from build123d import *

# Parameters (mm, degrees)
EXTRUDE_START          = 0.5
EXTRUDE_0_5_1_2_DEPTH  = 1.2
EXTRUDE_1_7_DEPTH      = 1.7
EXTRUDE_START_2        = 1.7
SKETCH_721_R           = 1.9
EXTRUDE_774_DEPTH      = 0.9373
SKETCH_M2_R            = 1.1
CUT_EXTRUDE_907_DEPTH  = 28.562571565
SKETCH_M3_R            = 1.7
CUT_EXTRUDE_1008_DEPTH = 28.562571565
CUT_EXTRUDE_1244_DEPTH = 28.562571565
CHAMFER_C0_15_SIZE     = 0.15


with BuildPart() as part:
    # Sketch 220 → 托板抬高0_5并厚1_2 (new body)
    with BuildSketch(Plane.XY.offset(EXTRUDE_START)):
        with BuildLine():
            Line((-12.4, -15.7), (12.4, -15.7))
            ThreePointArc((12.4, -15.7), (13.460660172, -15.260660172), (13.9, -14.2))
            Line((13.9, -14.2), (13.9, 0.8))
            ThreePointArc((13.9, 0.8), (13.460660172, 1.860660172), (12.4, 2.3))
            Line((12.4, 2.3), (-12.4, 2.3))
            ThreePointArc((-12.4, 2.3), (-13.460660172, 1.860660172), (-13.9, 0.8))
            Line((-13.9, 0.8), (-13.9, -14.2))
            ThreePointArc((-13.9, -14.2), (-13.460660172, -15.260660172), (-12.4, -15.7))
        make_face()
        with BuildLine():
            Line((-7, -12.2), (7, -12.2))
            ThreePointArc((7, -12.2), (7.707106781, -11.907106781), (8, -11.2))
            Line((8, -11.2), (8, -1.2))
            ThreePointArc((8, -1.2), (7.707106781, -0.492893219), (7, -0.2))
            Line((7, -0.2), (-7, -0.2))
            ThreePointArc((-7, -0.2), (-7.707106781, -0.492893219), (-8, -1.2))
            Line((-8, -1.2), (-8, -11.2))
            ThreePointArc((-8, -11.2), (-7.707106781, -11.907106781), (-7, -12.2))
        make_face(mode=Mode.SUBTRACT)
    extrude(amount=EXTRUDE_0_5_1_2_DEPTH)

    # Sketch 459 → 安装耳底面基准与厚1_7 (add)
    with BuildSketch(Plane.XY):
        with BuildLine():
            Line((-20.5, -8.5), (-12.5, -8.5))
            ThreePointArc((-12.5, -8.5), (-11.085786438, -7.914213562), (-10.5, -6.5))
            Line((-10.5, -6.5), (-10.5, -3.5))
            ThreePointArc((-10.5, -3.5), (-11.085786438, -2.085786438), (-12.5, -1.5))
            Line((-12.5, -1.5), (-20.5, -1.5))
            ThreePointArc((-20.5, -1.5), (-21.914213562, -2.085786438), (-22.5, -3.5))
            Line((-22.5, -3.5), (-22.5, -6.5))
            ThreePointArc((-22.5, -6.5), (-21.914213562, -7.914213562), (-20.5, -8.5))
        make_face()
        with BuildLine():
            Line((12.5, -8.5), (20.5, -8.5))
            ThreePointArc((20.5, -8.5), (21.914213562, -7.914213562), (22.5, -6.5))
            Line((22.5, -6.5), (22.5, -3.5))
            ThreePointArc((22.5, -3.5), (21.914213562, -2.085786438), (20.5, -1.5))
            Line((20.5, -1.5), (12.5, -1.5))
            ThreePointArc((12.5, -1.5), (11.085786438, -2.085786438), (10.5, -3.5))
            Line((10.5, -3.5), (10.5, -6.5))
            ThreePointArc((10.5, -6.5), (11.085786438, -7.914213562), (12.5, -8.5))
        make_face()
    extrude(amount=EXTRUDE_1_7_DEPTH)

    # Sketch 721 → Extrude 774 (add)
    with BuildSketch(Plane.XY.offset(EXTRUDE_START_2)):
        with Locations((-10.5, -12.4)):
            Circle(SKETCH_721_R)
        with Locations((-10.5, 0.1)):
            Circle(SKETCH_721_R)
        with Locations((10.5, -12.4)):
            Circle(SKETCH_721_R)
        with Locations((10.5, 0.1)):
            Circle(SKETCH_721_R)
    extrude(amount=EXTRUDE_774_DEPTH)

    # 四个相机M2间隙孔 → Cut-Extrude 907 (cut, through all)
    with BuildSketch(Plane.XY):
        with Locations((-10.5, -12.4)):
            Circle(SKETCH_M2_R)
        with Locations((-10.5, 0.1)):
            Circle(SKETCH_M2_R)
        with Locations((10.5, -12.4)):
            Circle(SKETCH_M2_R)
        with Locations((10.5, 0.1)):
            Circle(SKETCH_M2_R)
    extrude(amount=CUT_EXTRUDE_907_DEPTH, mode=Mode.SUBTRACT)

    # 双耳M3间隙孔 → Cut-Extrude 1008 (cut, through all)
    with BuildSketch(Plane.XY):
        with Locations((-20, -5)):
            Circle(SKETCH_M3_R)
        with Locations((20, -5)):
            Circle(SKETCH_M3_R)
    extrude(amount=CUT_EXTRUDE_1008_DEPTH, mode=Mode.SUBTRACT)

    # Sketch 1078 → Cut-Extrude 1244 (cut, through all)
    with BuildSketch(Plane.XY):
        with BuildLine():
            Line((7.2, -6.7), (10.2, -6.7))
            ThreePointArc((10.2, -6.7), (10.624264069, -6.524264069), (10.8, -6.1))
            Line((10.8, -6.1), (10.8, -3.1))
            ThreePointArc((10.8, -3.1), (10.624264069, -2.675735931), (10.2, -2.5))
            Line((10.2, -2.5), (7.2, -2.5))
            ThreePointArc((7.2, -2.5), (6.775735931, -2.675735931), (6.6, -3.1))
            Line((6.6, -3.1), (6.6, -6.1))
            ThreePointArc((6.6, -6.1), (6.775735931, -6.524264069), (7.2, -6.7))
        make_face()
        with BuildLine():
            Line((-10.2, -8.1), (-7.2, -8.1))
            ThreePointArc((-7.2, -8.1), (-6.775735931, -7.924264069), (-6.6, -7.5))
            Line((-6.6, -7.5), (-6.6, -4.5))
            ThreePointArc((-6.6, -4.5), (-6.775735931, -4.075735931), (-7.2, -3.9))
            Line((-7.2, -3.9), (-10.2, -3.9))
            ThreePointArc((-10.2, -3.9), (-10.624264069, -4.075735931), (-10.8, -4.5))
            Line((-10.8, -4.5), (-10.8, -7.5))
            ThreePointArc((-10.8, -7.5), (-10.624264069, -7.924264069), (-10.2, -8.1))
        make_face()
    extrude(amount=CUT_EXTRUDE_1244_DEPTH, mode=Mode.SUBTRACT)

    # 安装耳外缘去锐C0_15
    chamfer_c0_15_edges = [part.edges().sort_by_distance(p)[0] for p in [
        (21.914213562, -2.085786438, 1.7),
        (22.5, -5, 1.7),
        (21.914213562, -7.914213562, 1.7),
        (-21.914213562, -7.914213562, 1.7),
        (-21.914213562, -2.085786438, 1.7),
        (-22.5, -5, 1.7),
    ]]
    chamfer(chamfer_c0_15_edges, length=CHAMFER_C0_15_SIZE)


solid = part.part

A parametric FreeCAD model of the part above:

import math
import FreeCAD as App
import Part
import Sketcher

V = App.Vector
Q = App.Units.Quantity


def edges_at(feature, points):
    """Names of the edges that pass closest to the given points."""
    edges = feature.Shape.Edges
    near = lambda p: min(range(len(edges)), key=lambda i: edges[i].distToShape(Part.Vertex(*p))[0])
    return sorted({f"Edge{near(p) + 1}" for p in points})

doc = App.newDocument("Part")
body = doc.addObject("PartDesign::Body", "Body")

# Sketch on XY plane
sketch1 = body.newObject("Sketcher::SketchObject", "Sketch")
sketch1.AttachmentSupport = (doc.getObject("XY_Plane"), [""])
sketch1.MapMode = "FlatFace"
sketch1.AttachmentOffset = App.Placement(V(0, 0, 0.5), App.Rotation())
sketch1.addGeometry(Part.LineSegment(V(-12.4, -15.7, 0), V(12.4, -15.7, 0)), False)
sketch1.addGeometry(Part.ArcOfCircle(Part.Circle(V(12.4, -14.2, 0), V(0, 0, 1), 1.5), math.radians(-90), math.radians(0)), False)
sketch1.addGeometry(Part.LineSegment(V(13.9, -14.2, 0), V(13.9, 0.8, 0)), False)
sketch1.addGeometry(Part.ArcOfCircle(Part.Circle(V(12.4, 0.8, 0), V(0, 0, 1), 1.5), math.radians(0), math.radians(90)), False)
sketch1.addGeometry(Part.LineSegment(V(12.4, 2.3, 0), V(-12.4, 2.3, 0)), False)
sketch1.addGeometry(Part.ArcOfCircle(Part.Circle(V(-12.4, 0.8, 0), V(0, 0, 1), 1.5), math.radians(90), math.radians(180)), False)
sketch1.addGeometry(Part.LineSegment(V(-13.9, 0.8, 0), V(-13.9, -14.2, 0)), False)
sketch1.addGeometry(Part.ArcOfCircle(Part.Circle(V(-12.4, -14.2, 0), V(0, 0, 1), 1.5), math.radians(180), math.radians(270)), False)
sketch1.addGeometry(Part.LineSegment(V(7, -12.2, 0), V(-7, -12.2, 0)), False)
sketch1.addGeometry(Part.ArcOfCircle(Part.Circle(V(-7, -11.2, 0), V(0, 0, 1), 1), math.radians(-180), math.radians(-90)), False)
sketch1.addGeometry(Part.LineSegment(V(-8, -11.2, 0), V(-8, -1.2, 0)), False)
sketch1.addGeometry(Part.ArcOfCircle(Part.Circle(V(-7, -1.2, 0), V(0, 0, 1), 1), math.radians(90), math.radians(180)), False)
sketch1.addGeometry(Part.LineSegment(V(-7, -0.2, 0), V(7, -0.2, 0)), False)
sketch1.addGeometry(Part.ArcOfCircle(Part.Circle(V(7, -1.2, 0), V(0, 0, 1), 1), math.radians(0), math.radians(90)), False)
sketch1.addGeometry(Part.LineSegment(V(8, -1.2, 0), V(8, -11.2, 0)), False)
sketch1.addGeometry(Part.ArcOfCircle(Part.Circle(V(7, -11.2, 0), V(0, 0, 1), 1), math.radians(-90), math.radians(0)), False)
sketch1.addConstraint(Sketcher.Constraint("Tangent", 0, 2, 1, 1))
sketch1.addConstraint(Sketcher.Constraint("Tangent", 1, 2, 2, 1))
sketch1.addConstraint(Sketcher.Constraint("Tangent", 2, 2, 3, 1))
sketch1.addConstraint(Sketcher.Constraint("Tangent", 3, 2, 4, 1))
sketch1.addConstraint(Sketcher.Constraint("Tangent", 4, 2, 5, 1))
sketch1.addConstraint(Sketcher.Constraint("Tangent", 5, 2, 6, 1))
sketch1.addConstraint(Sketcher.Constraint("Tangent", 6, 2, 7, 1))
sketch1.addConstraint(Sketcher.Constraint("Tangent", 7, 2, 0, 1))
sketch1.addConstraint(Sketcher.Constraint("Tangent", 8, 2, 9, 2))
sketch1.addConstraint(Sketcher.Constraint("Tangent", 9, 1, 10, 1))
sketch1.addConstraint(Sketcher.Constraint("Tangent", 10, 2, 11, 2))
sketch1.addConstraint(Sketcher.Constraint("Tangent", 11, 1, 12, 1))
sketch1.addConstraint(Sketcher.Constraint("Tangent", 12, 2, 13, 2))
sketch1.addConstraint(Sketcher.Constraint("Tangent", 13, 1, 14, 1))
sketch1.addConstraint(Sketcher.Constraint("Tangent", 14, 2, 15, 2))
sketch1.addConstraint(Sketcher.Constraint("Tangent", 15, 1, 8, 1))
sketch1.addConstraint(Sketcher.Constraint("Horizontal", 0))
sketch1.addConstraint(Sketcher.Constraint("Vertical", 2))
sketch1.addConstraint(Sketcher.Constraint("Horizontal", 4))
sketch1.addConstraint(Sketcher.Constraint("Vertical", 6))
sketch1.addConstraint(Sketcher.Constraint("Horizontal", 8))
sketch1.addConstraint(Sketcher.Constraint("Vertical", 10))
sketch1.addConstraint(Sketcher.Constraint("Horizontal", 12))
sketch1.addConstraint(Sketcher.Constraint("Vertical", 14))
sketch1.addConstraint(Sketcher.Constraint("Equal", 1, 3))
sketch1.addConstraint(Sketcher.Constraint("Equal", 3, 5))
sketch1.addConstraint(Sketcher.Constraint("Equal", 5, 7))
sketch1.addConstraint(Sketcher.Constraint("Equal", 9, 11))
sketch1.addConstraint(Sketcher.Constraint("Equal", 11, 13))
sketch1.addConstraint(Sketcher.Constraint("Equal", 13, 15))
sketch1.addConstraint(Sketcher.Constraint("Radius", 9, Q("1 mm")))
sketch1.addConstraint(Sketcher.Constraint("Radius", 1, Q("1.5 mm")))
sketch1.addConstraint(Sketcher.Constraint("DistanceX", 8, 2, 8, 1, Q("14 mm")))
sketch1.addConstraint(Sketcher.Constraint("DistanceY", 2, 1, 2, 2, Q("15 mm")))
sketch1.addConstraint(Sketcher.Constraint("DistanceY", 10, 1, 10, 2, Q("10 mm")))
sketch1.addConstraint(Sketcher.Constraint("DistanceX", 0, 1, 0, 2, Q("24.8 mm")))
sketch1.addConstraint(Sketcher.Constraint("DistanceX", 9, 3, -1, 1, Q("7 mm")))
sketch1.addConstraint(Sketcher.Constraint("DistanceY", 7, 3, 9, 3, Q("3 mm")))
sketch1.addConstraint(Sketcher.Constraint("DistanceX", -1, 1, 1, 3, Q("12.4 mm")))
sketch1.addConstraint(Sketcher.Constraint("DistanceY", 1, 3, -1, 1, Q("14.2 mm")))
pad1 = body.newObject("PartDesign::Pad", "Pad")
pad1.Profile = sketch1
pad1.Length = 1.2

# Sketch on XY plane
sketch2 = body.newObject("Sketcher::SketchObject", "Sketch001")
sketch2.AttachmentSupport = (doc.getObject("XY_Plane"), [""])
sketch2.MapMode = "FlatFace"
sketch2.addGeometry(Part.LineSegment(V(-20.5, -8.5, 0), V(-12.5, -8.5, 0)), False)
sketch2.addGeometry(Part.ArcOfCircle(Part.Circle(V(-12.5, -6.5, 0), V(0, 0, 1), 2), math.radians(-90), math.radians(0)), False)
sketch2.addGeometry(Part.LineSegment(V(-10.5, -6.5, 0), V(-10.5, -3.5, 0)), False)
sketch2.addGeometry(Part.ArcOfCircle(Part.Circle(V(-12.5, -3.5, 0), V(0, 0, 1), 2), math.radians(0), math.radians(90)), False)
sketch2.addGeometry(Part.LineSegment(V(-12.5, -1.5, 0), V(-20.5, -1.5, 0)), False)
sketch2.addGeometry(Part.ArcOfCircle(Part.Circle(V(-20.5, -3.5, 0), V(0, 0, 1), 2), math.radians(90), math.radians(180)), False)
sketch2.addGeometry(Part.LineSegment(V(-22.5, -3.5, 0), V(-22.5, -6.5, 0)), False)
sketch2.addGeometry(Part.ArcOfCircle(Part.Circle(V(-20.5, -6.5, 0), V(0, 0, 1), 2), math.radians(-180), math.radians(-90)), False)
sketch2.addGeometry(Part.LineSegment(V(12.5, -8.5, 0), V(20.5, -8.5, 0)), False)
sketch2.addGeometry(Part.ArcOfCircle(Part.Circle(V(20.5, -6.5, 0), V(0, 0, 1), 2), math.radians(-90), math.radians(0)), False)
sketch2.addGeometry(Part.LineSegment(V(22.5, -6.5, 0), V(22.5, -3.5, 0)), False)
sketch2.addGeometry(Part.ArcOfCircle(Part.Circle(V(20.5, -3.5, 0), V(0, 0, 1), 2), math.radians(0), math.radians(90)), False)
sketch2.addGeometry(Part.LineSegment(V(20.5, -1.5, 0), V(12.5, -1.5, 0)), False)
sketch2.addGeometry(Part.ArcOfCircle(Part.Circle(V(12.5, -3.5, 0), V(0, 0, 1), 2), math.radians(90), math.radians(180)), False)
sketch2.addGeometry(Part.LineSegment(V(10.5, -3.5, 0), V(10.5, -6.5, 0)), False)
sketch2.addGeometry(Part.ArcOfCircle(Part.Circle(V(12.5, -6.5, 0), V(0, 0, 1), 2), math.radians(-180), math.radians(-90)), False)
sketch2.addConstraint(Sketcher.Constraint("Tangent", 0, 2, 1, 1))
sketch2.addConstraint(Sketcher.Constraint("Tangent", 1, 2, 2, 1))
sketch2.addConstraint(Sketcher.Constraint("Tangent", 2, 2, 3, 1))
sketch2.addConstraint(Sketcher.Constraint("Tangent", 3, 2, 4, 1))
sketch2.addConstraint(Sketcher.Constraint("Tangent", 4, 2, 5, 1))
sketch2.addConstraint(Sketcher.Constraint("Tangent", 5, 2, 6, 1))
sketch2.addConstraint(Sketcher.Constraint("Tangent", 6, 2, 7, 1))
sketch2.addConstraint(Sketcher.Constraint("Tangent", 7, 2, 0, 1))
sketch2.addConstraint(Sketcher.Constraint("Tangent", 8, 2, 9, 1))
sketch2.addConstraint(Sketcher.Constraint("Tangent", 9, 2, 10, 1))
sketch2.addConstraint(Sketcher.Constraint("Tangent", 10, 2, 11, 1))
sketch2.addConstraint(Sketcher.Constraint("Tangent", 11, 2, 12, 1))
sketch2.addConstraint(Sketcher.Constraint("Tangent", 12, 2, 13, 1))
sketch2.addConstraint(Sketcher.Constraint("Tangent", 13, 2, 14, 1))
sketch2.addConstraint(Sketcher.Constraint("Tangent", 14, 2, 15, 1))
sketch2.addConstraint(Sketcher.Constraint("Tangent", 15, 2, 8, 1))
sketch2.addConstraint(Sketcher.Constraint("Horizontal", 0))
sketch2.addConstraint(Sketcher.Constraint("Vertical", 2))
sketch2.addConstraint(Sketcher.Constraint("Horizontal", 4))
sketch2.addConstraint(Sketcher.Constraint("Vertical", 6))
sketch2.addConstraint(Sketcher.Constraint("Horizontal", 8))
sketch2.addConstraint(Sketcher.Constraint("Vertical", 10))
sketch2.addConstraint(Sketcher.Constraint("Horizontal", 12))
sketch2.addConstraint(Sketcher.Constraint("Vertical", 14))
sketch2.addConstraint(Sketcher.Constraint("Equal", 1, 3))
sketch2.addConstraint(Sketcher.Constraint("Equal", 3, 5))
sketch2.addConstraint(Sketcher.Constraint("Equal", 5, 7))
sketch2.addConstraint(Sketcher.Constraint("Equal", 7, 9))
sketch2.addConstraint(Sketcher.Constraint("Equal", 9, 11))
sketch2.addConstraint(Sketcher.Constraint("Equal", 11, 13))
sketch2.addConstraint(Sketcher.Constraint("Equal", 13, 15))
sketch2.addConstraint(Sketcher.Constraint("Symmetric", 7, 3, 9, 3, -2))
sketch2.addConstraint(Sketcher.Constraint("Symmetric", 3, 3, 13, 3, -2))
sketch2.addConstraint(Sketcher.Constraint("Radius", 1, Q("2 mm")))
sketch2.addConstraint(Sketcher.Constraint("DistanceX", 0, 1, 0, 2, Q("8 mm")))
sketch2.addConstraint(Sketcher.Constraint("DistanceY", 2, 1, 2, 2, Q("3 mm")))
sketch2.addConstraint(Sketcher.Constraint("DistanceX", 1, 3, 9, 3, Q("33 mm")))
sketch2.addConstraint(Sketcher.Constraint("DistanceY", 1, 3, -1, 1, Q("6.5 mm")))
pad2 = body.newObject("PartDesign::Pad", "Pad001")
pad2.Profile = sketch2
pad2.Length = 1.7

# Sketch on XY plane
sketch3 = body.newObject("Sketcher::SketchObject", "Sketch002")
sketch3.AttachmentSupport = (doc.getObject("XY_Plane"), [""])
sketch3.MapMode = "FlatFace"
sketch3.AttachmentOffset = App.Placement(V(0, 0, 1.7), App.Rotation())
sketch3.addGeometry(Part.Circle(V(-10.5, -12.4, 0), V(0, 0, 1), 1.9), False)
sketch3.addGeometry(Part.Circle(V(-10.5, 0.1, 0), V(0, 0, 1), 1.9), False)
sketch3.addGeometry(Part.Circle(V(10.5, -12.4, 0), V(0, 0, 1), 1.9), False)
sketch3.addGeometry(Part.Circle(V(10.5, 0.1, 0), V(0, 0, 1), 1.9), False)
sketch3.addConstraint(Sketcher.Constraint("Equal", 0, 1))
sketch3.addConstraint(Sketcher.Constraint("Equal", 1, 2))
sketch3.addConstraint(Sketcher.Constraint("Equal", 2, 3))
sketch3.addConstraint(Sketcher.Constraint("Symmetric", 0, 3, 2, 3, -2))
sketch3.addConstraint(Sketcher.Constraint("Symmetric", 1, 3, 3, 3, -2))
sketch3.addConstraint(Sketcher.Constraint("Vertical", 0, 3, 1, 3))
sketch3.addConstraint(Sketcher.Constraint("Diameter", 0, Q("3.8 mm")))
sketch3.addConstraint(Sketcher.Constraint("DistanceX", 0, 3, 2, 3, Q("21 mm")))
sketch3.addConstraint(Sketcher.Constraint("DistanceY", 0, 3, -1, 1, Q("12.4 mm")))
sketch3.addConstraint(Sketcher.Constraint("DistanceY", -1, 1, 1, 3, Q("0.1 mm")))
pad3 = body.newObject("PartDesign::Pad", "Pad002")
pad3.Profile = sketch3
pad3.Length = 0.9373

# Sketch on XY plane
sketch4 = body.newObject("Sketcher::SketchObject", "Sketch003")
sketch4.AttachmentSupport = (doc.getObject("XY_Plane"), [""])
sketch4.MapMode = "FlatFace"
sketch4.addGeometry(Part.Circle(V(-10.5, -12.4, 0), V(0, 0, 1), 1.1), False)
sketch4.addGeometry(Part.Circle(V(-10.5, 0.1, 0), V(0, 0, 1), 1.1), False)
sketch4.addGeometry(Part.Circle(V(10.5, -12.4, 0), V(0, 0, 1), 1.1), False)
sketch4.addGeometry(Part.Circle(V(10.5, 0.1, 0), V(0, 0, 1), 1.1), False)
sketch4.addConstraint(Sketcher.Constraint("Equal", 0, 1))
sketch4.addConstraint(Sketcher.Constraint("Equal", 1, 2))
sketch4.addConstraint(Sketcher.Constraint("Equal", 2, 3))
sketch4.addConstraint(Sketcher.Constraint("Symmetric", 0, 3, 2, 3, -2))
sketch4.addConstraint(Sketcher.Constraint("Symmetric", 1, 3, 3, 3, -2))
sketch4.addConstraint(Sketcher.Constraint("Vertical", 0, 3, 1, 3))
sketch4.addConstraint(Sketcher.Constraint("Diameter", 0, Q("2.2 mm")))
sketch4.addConstraint(Sketcher.Constraint("DistanceX", 0, 3, 2, 3, Q("21 mm")))
sketch4.addConstraint(Sketcher.Constraint("DistanceY", 0, 3, -1, 1, Q("12.4 mm")))
sketch4.addConstraint(Sketcher.Constraint("DistanceY", -1, 1, 1, 3, Q("0.1 mm")))
pocket1 = body.newObject("PartDesign::Pocket", "Pocket")
pocket1.Profile = sketch4
pocket1.Type = "ThroughAll"
pocket1.Reversed = True

# Sketch on XY plane
sketch5 = body.newObject("Sketcher::SketchObject", "Sketch004")
sketch5.AttachmentSupport = (doc.getObject("XY_Plane"), [""])
sketch5.MapMode = "FlatFace"
sketch5.addGeometry(Part.Circle(V(-20, -5, 0), V(0, 0, 1), 1.7), False)
sketch5.addGeometry(Part.Circle(V(20, -5, 0), V(0, 0, 1), 1.7), False)
sketch5.addConstraint(Sketcher.Constraint("Equal", 0, 1))
sketch5.addConstraint(Sketcher.Constraint("Symmetric", 0, 3, 1, 3, -2))
sketch5.addConstraint(Sketcher.Constraint("Diameter", 0, Q("3.4 mm")))
sketch5.addConstraint(Sketcher.Constraint("DistanceX", 0, 3, -1, 1, Q("20 mm")))
sketch5.addConstraint(Sketcher.Constraint("DistanceY", 0, 3, -1, 1, Q("5 mm")))
pocket2 = body.newObject("PartDesign::Pocket", "Pocket001")
pocket2.Profile = sketch5
pocket2.Type = "ThroughAll"
pocket2.Reversed = True

# Sketch on XY plane
sketch6 = body.newObject("Sketcher::SketchObject", "Sketch005")
sketch6.AttachmentSupport = (doc.getObject("XY_Plane"), [""])
sketch6.MapMode = "FlatFace"
sketch6.addGeometry(Part.LineSegment(V(7.2, -6.7, 0), V(10.2, -6.7, 0)), False)
sketch6.addGeometry(Part.ArcOfCircle(Part.Circle(V(10.2, -6.1, 0), V(0, 0, 1), 0.6), math.radians(-90), math.radians(0)), False)
sketch6.addGeometry(Part.LineSegment(V(10.8, -6.1, 0), V(10.8, -3.1, 0)), False)
sketch6.addGeometry(Part.ArcOfCircle(Part.Circle(V(10.2, -3.1, 0), V(0, 0, 1), 0.6), math.radians(0), math.radians(90)), False)
sketch6.addGeometry(Part.LineSegment(V(10.2, -2.5, 0), V(7.2, -2.5, 0)), False)
sketch6.addGeometry(Part.ArcOfCircle(Part.Circle(V(7.2, -3.1, 0), V(0, 0, 1), 0.6), math.radians(90), math.radians(180)), False)
sketch6.addGeometry(Part.LineSegment(V(6.6, -3.1, 0), V(6.6, -6.1, 0)), False)
sketch6.addGeometry(Part.ArcOfCircle(Part.Circle(V(7.2, -6.1, 0), V(0, 0, 1), 0.6), math.radians(180), math.radians(270)), False)
sketch6.addGeometry(Part.LineSegment(V(-10.2, -8.1, 0), V(-7.2, -8.1, 0)), False)
sketch6.addGeometry(Part.ArcOfCircle(Part.Circle(V(-7.2, -7.5, 0), V(0, 0, 1), 0.6), math.radians(-90), math.radians(0)), False)
sketch6.addGeometry(Part.LineSegment(V(-6.6, -7.5, 0), V(-6.6, -4.5, 0)), False)
sketch6.addGeometry(Part.ArcOfCircle(Part.Circle(V(-7.2, -4.5, 0), V(0, 0, 1), 0.6), math.radians(0), math.radians(90)), False)
sketch6.addGeometry(Part.LineSegment(V(-7.2, -3.9, 0), V(-10.2, -3.9, 0)), False)
sketch6.addGeometry(Part.ArcOfCircle(Part.Circle(V(-10.2, -4.5, 0), V(0, 0, 1), 0.6), math.radians(90), math.radians(180)), False)
sketch6.addGeometry(Part.LineSegment(V(-10.8, -4.5, 0), V(-10.8, -7.5, 0)), False)
sketch6.addGeometry(Part.ArcOfCircle(Part.Circle(V(-10.2, -7.5, 0), V(0, 0, 1), 0.6), math.radians(180), math.radians(270)), False)
sketch6.addConstraint(Sketcher.Constraint("Tangent", 0, 2, 1, 1))
sketch6.addConstraint(Sketcher.Constraint("Tangent", 1, 2, 2, 1))
sketch6.addConstraint(Sketcher.Constraint("Tangent", 2, 2, 3, 1))
sketch6.addConstraint(Sketcher.Constraint("Tangent", 3, 2, 4, 1))
sketch6.addConstraint(Sketcher.Constraint("Tangent", 4, 2, 5, 1))
sketch6.addConstraint(Sketcher.Constraint("Tangent", 5, 2, 6, 1))
sketch6.addConstraint(Sketcher.Constraint("Tangent", 6, 2, 7, 1))
sketch6.addConstraint(Sketcher.Constraint("Tangent", 7, 2, 0, 1))
sketch6.addConstraint(Sketcher.Constraint("Tangent", 8, 2, 9, 1))
sketch6.addConstraint(Sketcher.Constraint("Tangent", 9, 2, 10, 1))
sketch6.addConstraint(Sketcher.Constraint("Tangent", 10, 2, 11, 1))
sketch6.addConstraint(Sketcher.Constraint("Tangent", 11, 2, 12, 1))
sketch6.addConstraint(Sketcher.Constraint("Tangent", 12, 2, 13, 1))
sketch6.addConstraint(Sketcher.Constraint("Tangent", 13, 2, 14, 1))
sketch6.addConstraint(Sketcher.Constraint("Tangent", 14, 2, 15, 1))
sketch6.addConstraint(Sketcher.Constraint("Tangent", 15, 2, 8, 1))
sketch6.addConstraint(Sketcher.Constraint("Horizontal", 0))
sketch6.addConstraint(Sketcher.Constraint("Vertical", 2))
sketch6.addConstraint(Sketcher.Constraint("Horizontal", 4))
sketch6.addConstraint(Sketcher.Constraint("Vertical", 6))
sketch6.addConstraint(Sketcher.Constraint("Horizontal", 8))
sketch6.addConstraint(Sketcher.Constraint("Vertical", 10))
sketch6.addConstraint(Sketcher.Constraint("Horizontal", 12))
sketch6.addConstraint(Sketcher.Constraint("Vertical", 14))
sketch6.addConstraint(Sketcher.Constraint("Equal", 1, 3))
sketch6.addConstraint(Sketcher.Constraint("Equal", 3, 5))
sketch6.addConstraint(Sketcher.Constraint("Equal", 5, 7))
sketch6.addConstraint(Sketcher.Constraint("Equal", 7, 9))
sketch6.addConstraint(Sketcher.Constraint("Equal", 9, 11))
sketch6.addConstraint(Sketcher.Constraint("Equal", 11, 13))
sketch6.addConstraint(Sketcher.Constraint("Equal", 13, 15))
sketch6.addConstraint(Sketcher.Constraint("Equal", 4, 8))
sketch6.addConstraint(Sketcher.Constraint("Equal", 12, 2))
sketch6.addConstraint(Sketcher.Constraint("Equal", 6, 10))
sketch6.addConstraint(Sketcher.Constraint("Radius", 1, Q("0.6 mm")))
sketch6.addConstraint(Sketcher.Constraint("DistanceX", 0, 1, 0, 2, Q("3 mm")))
sketch6.addConstraint(Sketcher.Constraint("DistanceY", 8, 2, 6, 2, Q("2 mm")))
sketch6.addConstraint(Sketcher.Constraint("DistanceX", -1, 1, 1, 3, Q("10.2 mm")))
sketch6.addConstraint(Sketcher.Constraint("DistanceY", 1, 3, -1, 1, Q("6.1 mm")))
sketch6.addConstraint(Sketcher.Constraint("DistanceX", 9, 3, -1, 1, Q("7.2 mm")))
pocket3 = body.newObject("PartDesign::Pocket", "Pocket002")
pocket3.Profile = sketch6
pocket3.Type = "ThroughAll"
pocket3.Reversed = True
doc.recompute()

chamfer = body.newObject("PartDesign::Chamfer", "Chamfer")
chamfer.Base = (pocket3, edges_at(pocket3, [
    (21.914, -2.086, 1.7),
    (22.5, -5, 1.7),
    (21.914, -7.914, 1.7),
    (-21.914, -7.914, 1.7),
    (-21.914, -2.086, 1.7),
    (-22.5, -5, 1.7),
]))
chamfer.Size = 0.15

doc.recompute()
